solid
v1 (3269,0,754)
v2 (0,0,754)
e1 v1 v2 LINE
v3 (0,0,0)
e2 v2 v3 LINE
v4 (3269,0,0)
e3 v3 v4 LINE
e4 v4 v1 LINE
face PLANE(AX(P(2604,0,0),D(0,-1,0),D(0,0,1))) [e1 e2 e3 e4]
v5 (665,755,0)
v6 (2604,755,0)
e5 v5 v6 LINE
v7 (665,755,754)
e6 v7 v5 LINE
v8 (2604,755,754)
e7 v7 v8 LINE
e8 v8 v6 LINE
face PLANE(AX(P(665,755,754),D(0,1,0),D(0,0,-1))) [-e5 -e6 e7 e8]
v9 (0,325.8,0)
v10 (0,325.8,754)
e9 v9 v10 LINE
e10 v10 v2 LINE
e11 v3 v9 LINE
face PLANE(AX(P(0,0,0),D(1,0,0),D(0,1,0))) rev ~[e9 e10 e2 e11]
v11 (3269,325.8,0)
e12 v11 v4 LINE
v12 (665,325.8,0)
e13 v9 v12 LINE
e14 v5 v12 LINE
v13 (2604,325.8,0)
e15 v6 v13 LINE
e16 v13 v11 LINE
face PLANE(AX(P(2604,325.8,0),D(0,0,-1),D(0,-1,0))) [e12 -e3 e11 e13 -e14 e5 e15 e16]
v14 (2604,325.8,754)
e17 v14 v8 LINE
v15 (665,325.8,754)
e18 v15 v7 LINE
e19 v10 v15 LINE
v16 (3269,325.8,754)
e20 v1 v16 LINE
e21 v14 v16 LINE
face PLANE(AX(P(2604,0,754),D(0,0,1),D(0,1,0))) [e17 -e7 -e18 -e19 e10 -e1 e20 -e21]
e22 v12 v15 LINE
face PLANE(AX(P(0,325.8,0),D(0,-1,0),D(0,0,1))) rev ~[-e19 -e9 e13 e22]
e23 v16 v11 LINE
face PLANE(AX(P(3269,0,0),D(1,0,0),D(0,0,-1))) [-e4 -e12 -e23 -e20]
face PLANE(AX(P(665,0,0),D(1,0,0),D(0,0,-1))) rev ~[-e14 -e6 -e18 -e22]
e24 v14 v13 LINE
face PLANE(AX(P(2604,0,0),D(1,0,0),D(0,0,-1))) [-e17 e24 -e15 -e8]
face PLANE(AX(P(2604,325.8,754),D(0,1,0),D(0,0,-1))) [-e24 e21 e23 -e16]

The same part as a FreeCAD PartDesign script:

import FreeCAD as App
import Part
import Sketcher
from FreeCAD import Vector

doc = App.newDocument("Part")
body = doc.addObject("PartDesign::Body", "Body")

# Sketch on YZ plane
sketch1 = body.newObject("Sketcher::SketchObject", "Sketch")
sketch1.AttachmentSupport = (doc.getObject("YZ_Plane"), [""])
sketch1.MapMode = "FlatFace"
sketch1.addGeometry([
    Part.LineSegment(Vector(0, 754, 0), Vector(0, 0, 0)),
    Part.LineSegment(Vector(0, 0, 0), Vector(326, 0, 0)),
    Part.LineSegment(Vector(326, 0, 0), Vector(326, 754, 0)),
    Part.LineSegment(Vector(326, 754, 0), Vector(0, 754, 0)),
], False)
sketch1.addConstraint([
    Sketcher.Constraint("Coincident", 0, 2, 1, 1),
    Sketcher.Constraint("Coincident", 1, 2, 2, 1),
    Sketcher.Constraint("Coincident", 2, 2, 3, 1),
    Sketcher.Constraint("Coincident", 3, 2, 0, 1),
    Sketcher.Constraint("Vertical", 0),
    Sketcher.Constraint("Horizontal", 1),
    Sketcher.Constraint("Vertical", 2),
    Sketcher.Constraint("Horizontal", 3),
    Sketcher.Constraint("Coincident", 0, 2, -1, 1),
    Sketcher.Constraint("DistanceY", 0, 2, 0, 1, 754.0),
    Sketcher.Constraint("DistanceX", 1, 1, 1, 2, 325.8),
])
pad1 = body.newObject("PartDesign::Pad", "Pad")
pad1.Profile = sketch1
pad1.Length = 665

# Sketch on YZ plane
sketch2 = body.newObject("Sketcher::SketchObject", "Sketch001")
sketch2.AttachmentSupport = (doc.getObject("YZ_Plane"), [""])
sketch2.MapMode = "FlatFace"
sketch2.AttachmentOffset = App.Placement(Vector(0, 0, 665), App.Rotation())
sketch2.addGeometry([
    Part.LineSegment(Vector(0, 754, 0), Vector(0, 0, 0)),
    Part.LineSegment(Vector(0, 0, 0), Vector(755, 0, 0)),
    Part.LineSegment(Vector(755, 0, 0), Vector(755, 754, 0)),
    Part.LineSegment(Vector(755, 754, 0), Vector(0, 754, 0)),
], False)
sketch2.addConstraint([
    Sketcher.Constraint("Coincident", 0, 2, 1, 1),
    Sketcher.Constraint("Coincident", 1, 2, 2, 1),
    Sketcher.Constraint("Coincident", 2, 2, 3, 1),
    Sketcher.Constraint("Coincident", 3, 2, 0, 1),
    Sketcher.Constraint("Vertical", 0),
    Sketcher.Constraint("Horizontal", 1),
    Sketcher.Constraint("Vertical", 2),
    Sketcher.Constraint("Horizontal", 3),
    Sketcher.Constraint("Coincident", 0, 2, -1, 1),
    Sketcher.Constraint("DistanceX", 1, 1, 1, 2, 755.0),
    Sketcher.Constraint("DistanceY", 0, 2, 0, 1, 754.0),
])
pad2 = body.newObject("PartDesign::Pad", "Pad001")
pad2.Profile = sketch2
pad2.Length = 1939

# Sketch on YZ plane
sketch3 = body.newObject("Sketcher::SketchObject", "Sketch002")
sketch3.AttachmentSupport = (doc.getObject("YZ_Plane"), [""])
sketch3.MapMode = "FlatFace"
sketch3.AttachmentOffset = App.Placement(Vector(0, 0, 2604), App.Rotation())
sketch3.addGeometry([
    Part.LineSegment(Vector(0, 754, 0), Vector(0, 0, 0)),
    Part.LineSegment(Vector(0, 0, 0), Vector(326, 0, 0)),
    Part.LineSegment(Vector(326, 0, 0), Vector(326, 754, 0)),
    Part.LineSegment(Vector(326, 754, 0), Vector(0, 754, 0)),
], False)
sketch3.addConstraint([
    Sketcher.Constraint("Coincident", 0, 2, 1, 1),
    Sketcher.Constraint("Coincident", 1, 2, 2, 1),
    Sketcher.Constraint("Coincident", 2, 2, 3, 1),
    Sketcher.Constraint("Coincident", 3, 2, 0, 1),
    Sketcher.Constraint("Vertical", 0),
    Sketcher.Constraint("Horizontal", 1),
    Sketcher.Constraint("Vertical", 2),
    Sketcher.Constraint("Horizontal", 3),
    Sketcher.Constraint("Coincident", 0, 2, -1, 1),
    Sketcher.Constraint("DistanceY", 0, 2, 0, 1, 754.0),
    Sketcher.Constraint("DistanceX", 1, 1, 1, 2, 325.8),
])
pad3 = body.newObject("PartDesign::Pad", "Pad002")
pad3.Profile = sketch3
pad3.Length = 665

doc.recompute()
